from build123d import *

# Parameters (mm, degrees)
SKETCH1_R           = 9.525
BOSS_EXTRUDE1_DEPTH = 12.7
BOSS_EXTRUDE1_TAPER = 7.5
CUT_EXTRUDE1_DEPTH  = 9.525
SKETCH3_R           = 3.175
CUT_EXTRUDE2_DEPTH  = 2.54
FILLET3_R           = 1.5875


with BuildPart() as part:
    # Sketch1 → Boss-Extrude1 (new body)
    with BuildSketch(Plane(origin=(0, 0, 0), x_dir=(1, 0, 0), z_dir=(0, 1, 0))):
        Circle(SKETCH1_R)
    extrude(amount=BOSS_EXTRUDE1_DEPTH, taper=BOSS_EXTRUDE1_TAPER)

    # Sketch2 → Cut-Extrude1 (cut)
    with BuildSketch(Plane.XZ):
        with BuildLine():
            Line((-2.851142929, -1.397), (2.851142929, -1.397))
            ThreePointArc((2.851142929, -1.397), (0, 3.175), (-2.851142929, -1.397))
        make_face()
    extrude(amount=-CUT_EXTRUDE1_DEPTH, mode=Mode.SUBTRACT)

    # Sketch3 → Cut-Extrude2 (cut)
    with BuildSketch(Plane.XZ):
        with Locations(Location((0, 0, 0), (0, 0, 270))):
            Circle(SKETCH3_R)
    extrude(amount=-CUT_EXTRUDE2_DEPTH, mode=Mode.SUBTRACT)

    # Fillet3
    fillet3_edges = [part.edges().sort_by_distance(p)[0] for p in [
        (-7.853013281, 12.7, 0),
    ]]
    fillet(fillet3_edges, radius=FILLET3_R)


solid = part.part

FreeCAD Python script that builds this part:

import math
import FreeCAD as App
import Part
import Sketcher
Q = App.Units.Quantity


def edges_at(feature, points):
    """Names of the edges that pass closest to the given points."""
    edges = feature.Shape.Edges
    near = lambda p: min(range(len(edges)), key=lambda i: edges[i].distToShape(Part.Vertex(*p))[0])
    return sorted({f"Edge{near(p) + 1}" for p in points})

doc = App.newDocument("Part")
body = doc.addObject("PartDesign::Body", "Body")

# Sketch on XZ plane
sketch1 = doc.addObject("Sketcher::SketchObject", "Sketch")
body.addObject(sketch1)
sketch1.AttachmentSupport = (doc.XZ_Plane, [""])
sketch1.MapMode = "FlatFace"
sketch1.addGeometry(Part.Circle(App.Vector(0, 0, 0), App.Vector(0, 0, 1), 10), False)
sketch1.addConstraint(Sketcher.Constraint("Coincident", 0, 3, -1, 1))
sketch1.addConstraint(Sketcher.Constraint("Diameter", 0, Q("0.75 in")))
pad1 = doc.addObject("PartDesign::Pad", "Pad")
body.addObject(pad1)
pad1.Profile = sketch1
pad1.Length = Q("0.5 in")
pad1.Reversed = True
pad1.TaperAngle = -7.5

# Sketch on XZ plane
sketch2 = doc.addObject("Sketcher::SketchObject", "Sketch001")
body.addObject(sketch2)
sketch2.AttachmentSupport = (doc.XZ_Plane, [""])
sketch2.MapMode = "FlatFace"
sketch2.addGeometry(Part.LineSegment(App.Vector(-2.9, -1.4, 0), App.Vector(2.9, -1.4, 0)), False)
sketch2.addGeometry(Part.ArcOfCircle(Part.Circle(App.Vector(0, 0, 0), App.Vector(0, 0, 1), 3.2), math.radians(-26), math.radians(206)), False)
sketch2.addConstraint(Sketcher.Constraint("Coincident", 0, 1, 1, 2))
sketch2.addConstraint(Sketcher.Constraint("Coincident", 1, 1, 0, 2))
sketch2.addConstraint(Sketcher.Constraint("Horizontal", 0))
sketch2.addConstraint(Sketcher.Constraint("Coincident", 1, 3, -1, 1))
sketch2.addConstraint(Sketcher.Constraint("Radius", 1, Q("0.125 in")))
sketch2.addConstraint(Sketcher.Constraint("DistanceY", 0, 1, -1, 1, Q("0.055 in")))
pocket1 = doc.addObject("PartDesign::Pocket", "Pocket")
body.addObject(pocket1)
pocket1.Profile = sketch2
pocket1.Length = Q("0.375 in")

# Sketch on XZ plane
sketch3 = doc.addObject("Sketcher::SketchObject", "Sketch002")
body.addObject(sketch3)
sketch3.AttachmentSupport = (doc.XZ_Plane, [""])
sketch3.MapMode = "FlatFace"
sketch3.addGeometry(Part.Circle(App.Vector(0, 0, 0), App.Vector(0, 0, 1), 3.2), False)
sketch3.addConstraint(Sketcher.Constraint("Coincident", 0, 3, -1, 1))
sketch3.addConstraint(Sketcher.Constraint("Diameter", 0, Q("0.25 in")))
pocket2 = doc.addObject("PartDesign::Pocket", "Pocket001")
body.addObject(pocket2)
pocket2.Profile = sketch3
pocket2.Length = Q("0.1 in")
doc.recompute()

fillet = doc.addObject("PartDesign::Fillet", "Fillet")
body.addObject(fillet)
fillet.Base = (pocket2, edges_at(pocket2, [(-7.853, 12.7, 0)]))
fillet.Radius = Q("0.0625 in")

doc.recompute()
